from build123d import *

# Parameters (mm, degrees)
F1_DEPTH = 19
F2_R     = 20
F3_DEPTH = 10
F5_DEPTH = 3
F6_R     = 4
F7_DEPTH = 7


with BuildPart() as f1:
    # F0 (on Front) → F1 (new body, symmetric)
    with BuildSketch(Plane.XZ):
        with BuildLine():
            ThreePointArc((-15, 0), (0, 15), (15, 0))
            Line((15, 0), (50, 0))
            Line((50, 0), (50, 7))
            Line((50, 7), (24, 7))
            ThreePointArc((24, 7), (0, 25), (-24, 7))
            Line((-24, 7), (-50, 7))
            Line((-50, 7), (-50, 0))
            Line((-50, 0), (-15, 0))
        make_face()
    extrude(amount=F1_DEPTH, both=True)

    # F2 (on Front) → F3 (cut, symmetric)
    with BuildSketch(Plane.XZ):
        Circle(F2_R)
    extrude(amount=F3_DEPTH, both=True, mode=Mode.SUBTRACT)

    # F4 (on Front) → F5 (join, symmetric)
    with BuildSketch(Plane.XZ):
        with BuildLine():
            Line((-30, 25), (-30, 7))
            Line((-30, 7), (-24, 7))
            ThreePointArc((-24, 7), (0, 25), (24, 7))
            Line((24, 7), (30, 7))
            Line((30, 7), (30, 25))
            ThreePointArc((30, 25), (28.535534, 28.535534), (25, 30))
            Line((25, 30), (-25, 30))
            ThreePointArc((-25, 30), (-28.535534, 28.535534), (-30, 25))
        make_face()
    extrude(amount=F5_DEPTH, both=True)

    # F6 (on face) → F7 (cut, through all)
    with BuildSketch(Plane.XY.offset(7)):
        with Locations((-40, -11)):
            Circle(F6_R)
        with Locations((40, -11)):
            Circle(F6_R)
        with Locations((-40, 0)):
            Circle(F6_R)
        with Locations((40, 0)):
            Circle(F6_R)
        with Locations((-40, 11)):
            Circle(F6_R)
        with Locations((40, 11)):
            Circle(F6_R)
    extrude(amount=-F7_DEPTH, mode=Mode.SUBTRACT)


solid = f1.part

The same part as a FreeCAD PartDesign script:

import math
import FreeCAD as App
import Part
import Sketcher
from FreeCAD import Vector

doc = App.newDocument("Part")
params = doc.addObject("Spreadsheet::Sheet", "Params")
for row, (alias, value) in enumerate([
    ("sketch1_radius", "15 mm"),
    ("sketch1_radius2", "25 mm"),
    ("sketch1_width", "35 mm"),
    ("sketch1_width2", "26 mm"),
    ("pad1_length", "38 mm"),
    ("sketch2_diameter", "40 mm"),
    ("pocket1_length", "20 mm"),
    ("sketch3_radius", "25 mm"),
    ("sketch3_radius2", "5 mm"),
    ("sketch3_width", "6 mm"),
    ("sketch3_width2", "50 mm"),
    ("sketch3_height", "18 mm"),
    ("pad2_length", "6 mm"),
    ("sketch4_diameter", "8 mm"),
], start=1):
    params.set(f"A{row}", alias)
    params.set(f"B{row}", "=" + value)
    params.setAlias(f"B{row}", alias)

body = doc.addObject("PartDesign::Body", "Body")

sketch1 = doc.addObject("Sketcher::SketchObject", "Sketch")
body.addObject(sketch1)
sketch1.AttachmentSupport = (doc.XZ_Plane, [""])
sketch1.MapMode = "FlatFace"
sketch1.addGeometry(Part.ArcOfCircle(Part.Circle(Vector(0, 0, 0), Vector(0, 0, 1), 15), math.radians(0), math.radians(180)), False)
sketch1.addGeometry(Part.LineSegment(Vector(15, 0, 0), Vector(50, 0, 0)), False)
sketch1.addGeometry(Part.LineSegment(Vector(50, 0, 0), Vector(50, 7, 0)), False)
sketch1.addGeometry(Part.LineSegment(Vector(50, 7, 0), Vector(24, 7, 0)), False)
sketch1.addGeometry(Part.ArcOfCircle(Part.Circle(Vector(0, 0, 0), Vector(0, 0, 1), 25), math.radians(16), math.radians(164)), False)
sketch1.addGeometry(Part.LineSegment(Vector(-24, 7, 0), Vector(-50, 7, 0)), False)
sketch1.addGeometry(Part.LineSegment(Vector(-50, 7, 0), Vector(-50, 0, 0)), False)
sketch1.addGeometry(Part.LineSegment(Vector(-50, 0, 0), Vector(-15, 0, 0)), False)
sketch1.addConstraint(Sketcher.Constraint("Coincident", 0, 1, 1, 1))
sketch1.addConstraint(Sketcher.Constraint("Coincident", 1, 2, 2, 1))
sketch1.addConstraint(Sketcher.Constraint("Coincident", 2, 2, 3, 1))
sketch1.addConstraint(Sketcher.Constraint("Coincident", 3, 2, 4, 1))
sketch1.addConstraint(Sketcher.Constraint("Coincident", 4, 2, 5, 1))
sketch1.addConstraint(Sketcher.Constraint("Coincident", 5, 2, 6, 1))
sketch1.addConstraint(Sketcher.Constraint("Coincident", 6, 2, 7, 1))
sketch1.addConstraint(Sketcher.Constraint("Coincident", 7, 2, 0, 2))
sketch1.addConstraint(Sketcher.Constraint("Horizontal", 1))
sketch1.addConstraint(Sketcher.Constraint("Vertical", 2))
sketch1.addConstraint(Sketcher.Constraint("Horizontal", 3))
sketch1.addConstraint(Sketcher.Constraint("Horizontal", 5))
sketch1.addConstraint(Sketcher.Constraint("Vertical", 6))
sketch1.addConstraint(Sketcher.Constraint("Horizontal", 7))
sketch1.addConstraint(Sketcher.Constraint("Coincident", 0, 3, -1, 1))
sketch1.addConstraint(Sketcher.Constraint("Coincident", 4, 3, -1, 1))
sketch1.addConstraint(Sketcher.Constraint("Symmetric", 1, 2, 6, 2, -1, 1))
sketch1.addConstraint(Sketcher.Constraint("PointOnObject", 0, 1, -1))
sketch1.addConstraint(Sketcher.Constraint("Horizontal", 3, 2, 4, 2))
sketch1.addConstraint(Sketcher.Constraint("Radius", 0, 15.0))
sketch1.addConstraint(Sketcher.Constraint("Radius", 4, 25.0))
sketch1.addConstraint(Sketcher.Constraint("DistanceX", 1, 1, 1, 2, 35.0))
sketch1.addConstraint(Sketcher.Constraint("DistanceX", 3, 2, 3, 1, 26.0))
sketch1.setExpression("Constraints[19]", "Params.sketch1_radius")
sketch1.setExpression("Constraints[20]", "Params.sketch1_radius2")
sketch1.setExpression("Constraints[21]", "Params.sketch1_width")
sketch1.setExpression("Constraints[22]", "Params.sketch1_width2")
pad1 = doc.addObject("PartDesign::Pad", "Pad")
body.addObject(pad1)
pad1.Profile = sketch1
pad1.setExpression("Length", "Params.pad1_length")
pad1.Midplane = True

sketch2 = doc.addObject("Sketcher::SketchObject", "Sketch001")
body.addObject(sketch2)
sketch2.AttachmentSupport = (doc.XZ_Plane, [""])
sketch2.MapMode = "FlatFace"
sketch2.addGeometry(Part.Circle(Vector(0, 0, 0), Vector(0, 0, 1), 20), False)
sketch2.addConstraint(Sketcher.Constraint("Coincident", 0, 3, -1, 1))
sketch2.addConstraint(Sketcher.Constraint("Diameter", 0, 40.0))
sketch2.setExpression("Constraints[1]", "Params.sketch2_diameter")
pocket1 = doc.addObject("PartDesign::Pocket", "Pocket")
body.addObject(pocket1)
pocket1.Profile = sketch2
pocket1.setExpression("Length", "Params.pocket1_length")
pocket1.Midplane = True

sketch3 = doc.addObject("Sketcher::SketchObject", "Sketch002")
body.addObject(sketch3)
sketch3.AttachmentSupport = (doc.XZ_Plane, [""])
sketch3.MapMode = "FlatFace"
sketch3.addGeometry(Part.LineSegment(Vector(-30, 25, 0), Vector(-30, 7, 0)), False)
sketch3.addGeometry(Part.LineSegment(Vector(-30, 7, 0), Vector(-24, 7, 0)), False)
sketch3.addGeometry(Part.ArcOfCircle(Part.Circle(Vector(0, 0, 0), Vector(0, 0, 1), 25), math.radians(16), math.radians(164)), False)
sketch3.addGeometry(Part.LineSegment(Vector(24, 7, 0), Vector(30, 7, 0)), False)
sketch3.addGeometry(Part.LineSegment(Vector(30, 7, 0), Vector(30, 25, 0)), False)
sketch3.addGeometry(Part.ArcOfCircle(Part.Circle(Vector(25, 25, 0), Vector(0, 0, 1), 5), math.radians(0), math.radians(90)), False)
sketch3.addGeometry(Part.LineSegment(Vector(25, 30, 0), Vector(-25, 30, 0)), False)
sketch3.addGeometry(Part.ArcOfCircle(Part.Circle(Vector(-25, 25, 0), Vector(0, 0, 1), 5), math.radians(90), math.radians(180)), False)
sketch3.addConstraint(Sketcher.Constraint("Coincident", 0, 2, 1, 1))
sketch3.addConstraint(Sketcher.Constraint("Coincident", 1, 2, 2, 2))
sketch3.addConstraint(Sketcher.Constraint("Coincident", 2, 1, 3, 1))
sketch3.addConstraint(Sketcher.Constraint("Coincident", 3, 2, 4, 1))
sketch3.addConstraint(Sketcher.Constraint("Tangent", 4, 2, 5, 1))
sketch3.addConstraint(Sketcher.Constraint("Tangent", 5, 2, 6, 1))
sketch3.addConstraint(Sketcher.Constraint("Tangent", 6, 2, 7, 1))
sketch3.addConstraint(Sketcher.Constraint("Tangent", 7, 2, 0, 1))
sketch3.addConstraint(Sketcher.Constraint("Vertical", 0))
sketch3.addConstraint(Sketcher.Constraint("Horizontal", 1))
sketch3.addConstraint(Sketcher.Constraint("Horizontal", 3))
sketch3.addConstraint(Sketcher.Constraint("Vertical", 4))
sketch3.addConstraint(Sketcher.Constraint("Horizontal", 6))
sketch3.addConstraint(Sketcher.Constraint("Coincident", 2, 3, -1, 1))
sketch3.addConstraint(Sketcher.Constraint("Equal", 5, 7))
sketch3.addConstraint(Sketcher.Constraint("Symmetric", 0, 2, 3, 2, -2))
sketch3.addConstraint(Sketcher.Constraint("Radius", 2, 25.0))
sketch3.addConstraint(Sketcher.Constraint("Radius", 5, 5.0))
sketch3.addConstraint(Sketcher.Constraint("DistanceX", 1, 1, 1, 2, 6.0))
sketch3.addConstraint(Sketcher.Constraint("DistanceX", 6, 2, 6, 1, 50.0))
sketch3.addConstraint(Sketcher.Constraint("DistanceY", 0, 2, 0, 1, 18.0))
sketch3.setExpression("Constraints[16]", "Params.sketch3_radius")
sketch3.setExpression("Constraints[17]", "Params.sketch3_radius2")
sketch3.setExpression("Constraints[18]", "Params.sketch3_width")
sketch3.setExpression("Constraints[19]", "Params.sketch3_width2")
sketch3.setExpression("Constraints[20]", "Params.sketch3_height")
pad2 = doc.addObject("PartDesign::Pad", "Pad001")
body.addObject(pad2)
pad2.Profile = sketch3
pad2.setExpression("Length", "Params.pad2_length")
pad2.Midplane = True

sketch4 = doc.addObject("Sketcher::SketchObject", "Sketch003")
body.addObject(sketch4)
sketch4.AttachmentSupport = (doc.XY_Plane, [""])
sketch4.MapMode = "FlatFace"
sketch4.AttachmentOffset = App.Placement(Vector(0, 0, 7), App.Rotation())
sketch4.addGeometry(Part.Circle(Vector(-40, -11, 0), Vector(0, 0, 1), 4), False)
sketch4.addGeometry(Part.Circle(Vector(40, -11, 0), Vector(0, 0, 1), 4), False)
sketch4.addGeometry(Part.Circle(Vector(-40, 0, 0), Vector(0, 0, 1), 4), False)
sketch4.addGeometry(Part.Circle(Vector(40, 0, 0), Vector(0, 0, 1), 4), False)
sketch4.addGeometry(Part.Circle(Vector(-40, 11, 0), Vector(0, 0, 1), 4), False)
sketch4.addGeometry(Part.Circle(Vector(40, 11, 0), Vector(0, 0, 1), 4), False)
sketch4.addConstraint(Sketcher.Constraint("Equal", 0, 1))
sketch4.addConstraint(Sketcher.Constraint("Equal", 1, 2))
sketch4.addConstraint(Sketcher.Constraint("Equal", 2, 3))
sketch4.addConstraint(Sketcher.Constraint("Equal", 3, 4))
sketch4.addConstraint(Sketcher.Constraint("Equal", 4, 5))
sketch4.addConstraint(Sketcher.Constraint("Symmetric", 2, 3, 3, 3, -1, 1))
sketch4.addConstraint(Sketcher.Constraint("Symmetric", 1, 3, 4, 3, -1, 1))
sketch4.addConstraint(Sketcher.Constraint("Symmetric", 0, 3, 5, 3, -1, 1))
sketch4.addConstraint(Sketcher.Constraint("Symmetric", 0, 3, 1, 3, -2))
sketch4.addConstraint(Sketcher.Constraint("PointOnObject", 2, 3, -1))
sketch4.addConstraint(Sketcher.Constraint("Vertical", 0, 3, 2, 3))
sketch4.addConstraint(Sketcher.Constraint("Diameter", 0, 8.0))
sketch4.addConstraint(Sketcher.Constraint("DistanceX", 0, 3, -1, 1, 40.0))
sketch4.addConstraint(Sketcher.Constraint("DistanceY", 0, 3, -1, 1, 11.0))
sketch4.setExpression("Constraints[11]", "Params.sketch4_diameter")
pocket2 = doc.addObject("PartDesign::Pocket", "Pocket001")
body.addObject(pocket2)
pocket2.Profile = sketch4
pocket2.Type = "ThroughAll"

doc.recompute()
